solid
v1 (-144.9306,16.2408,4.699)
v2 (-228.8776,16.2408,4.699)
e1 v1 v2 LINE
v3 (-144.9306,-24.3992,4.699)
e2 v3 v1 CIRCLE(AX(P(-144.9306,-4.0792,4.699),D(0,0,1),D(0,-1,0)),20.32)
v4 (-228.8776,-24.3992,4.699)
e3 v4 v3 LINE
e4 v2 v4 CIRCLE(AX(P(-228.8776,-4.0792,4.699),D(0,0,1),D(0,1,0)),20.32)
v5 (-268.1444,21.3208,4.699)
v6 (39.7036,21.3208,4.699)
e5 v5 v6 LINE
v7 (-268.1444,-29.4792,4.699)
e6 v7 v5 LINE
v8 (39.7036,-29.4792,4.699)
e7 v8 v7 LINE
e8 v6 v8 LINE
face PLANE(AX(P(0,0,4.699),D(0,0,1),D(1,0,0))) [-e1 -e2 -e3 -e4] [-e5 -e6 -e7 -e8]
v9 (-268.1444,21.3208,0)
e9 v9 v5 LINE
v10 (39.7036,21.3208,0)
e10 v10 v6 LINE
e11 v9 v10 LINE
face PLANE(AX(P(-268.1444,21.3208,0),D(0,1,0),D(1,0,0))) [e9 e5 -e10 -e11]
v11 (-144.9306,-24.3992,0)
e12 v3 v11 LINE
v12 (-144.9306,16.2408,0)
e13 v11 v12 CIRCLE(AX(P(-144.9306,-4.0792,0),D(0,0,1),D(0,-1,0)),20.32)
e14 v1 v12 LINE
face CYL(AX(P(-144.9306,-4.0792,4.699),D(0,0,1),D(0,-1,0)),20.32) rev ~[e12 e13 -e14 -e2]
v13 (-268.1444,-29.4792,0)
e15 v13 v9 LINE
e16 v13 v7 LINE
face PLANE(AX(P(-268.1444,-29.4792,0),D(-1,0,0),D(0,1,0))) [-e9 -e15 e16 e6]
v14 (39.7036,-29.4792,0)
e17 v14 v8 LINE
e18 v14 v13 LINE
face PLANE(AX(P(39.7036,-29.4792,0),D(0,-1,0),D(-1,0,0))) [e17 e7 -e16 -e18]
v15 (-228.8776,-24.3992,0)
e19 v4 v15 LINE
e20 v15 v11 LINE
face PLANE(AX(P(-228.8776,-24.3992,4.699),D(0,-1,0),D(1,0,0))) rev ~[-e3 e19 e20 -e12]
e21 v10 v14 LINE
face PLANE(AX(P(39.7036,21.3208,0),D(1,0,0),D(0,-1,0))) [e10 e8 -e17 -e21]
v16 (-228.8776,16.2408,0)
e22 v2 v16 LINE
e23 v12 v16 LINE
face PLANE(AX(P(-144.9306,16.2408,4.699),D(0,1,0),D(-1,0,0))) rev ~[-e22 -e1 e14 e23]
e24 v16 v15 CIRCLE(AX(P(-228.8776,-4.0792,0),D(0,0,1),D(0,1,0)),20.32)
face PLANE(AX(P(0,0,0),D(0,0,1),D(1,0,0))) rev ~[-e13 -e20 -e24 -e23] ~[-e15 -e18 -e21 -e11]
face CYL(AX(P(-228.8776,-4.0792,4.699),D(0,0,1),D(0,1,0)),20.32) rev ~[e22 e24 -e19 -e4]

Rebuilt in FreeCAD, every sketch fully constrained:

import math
import FreeCAD as App
import Part
import Sketcher

V = App.Vector
Q = App.Units.Quantity


def add_polygon(sketch, points):
    """Adds a closed chain of lines whose ends are joined by coincident constraints."""
    first, n = sketch.GeometryCount, len(points)
    for a, b in zip(points, points[1:] + points[:1]):
        sketch.addGeometry(Part.LineSegment(App.Vector(*a, 0), App.Vector(*b, 0)), False)
    for i in range(n):
        sketch.addConstraint(Sketcher.Constraint("Coincident", first + i, 2, first + (i + 1) % n, 1))

doc = App.newDocument("Part")
body = doc.addObject("PartDesign::Body", "Body")

sketch1 = body.newObject("Sketcher::SketchObject", "Sketch")
sketch1.AttachmentSupport = (doc.getObject("XY_Plane"), [""])
sketch1.MapMode = "FlatFace"
add_polygon(sketch1, [(40, 21), (-268, 21), (-268, -29), (40, -29)])
sketch1.addConstraint(Sketcher.Constraint("Horizontal", 0))
sketch1.addConstraint(Sketcher.Constraint("Vertical", 1))
sketch1.addConstraint(Sketcher.Constraint("Horizontal", 2))
sketch1.addConstraint(Sketcher.Constraint("Vertical", 3))
sketch1.addConstraint(Sketcher.Constraint("DistanceY", 1, 2, 1, 1, Q("2 in")))
sketch1.addConstraint(Sketcher.Constraint("DistanceX", 0, 2, 0, 1, Q("12.12 in")))
sketch1.addConstraint(Sketcher.Constraint("DistanceY", -1, 1, 0, 2, Q("0.8394 in")))
sketch1.addConstraint(Sketcher.Constraint("DistanceX", 0, 2, -1, 1, 268.1444))
pad1 = body.newObject("PartDesign::Pad", "Pad")
pad1.Profile = sketch1
pad1.Length = Q("0.185 in")

sketch2 = body.newObject("Sketcher::SketchObject", "Sketch001")
sketch2.AttachmentSupport = (doc.getObject("XY_Plane"), [""])
sketch2.MapMode = "FlatFace"
sketch2.AttachmentOffset = App.Placement(V(0, 0, 0.185 * 25.4), App.Rotation())
sketch2.addGeometry(Part.ArcOfCircle(Part.Circle(V(-229, -4, 0), V(0, 0, 1), 20), math.radians(90), math.radians(270)), False)
sketch2.addGeometry(Part.LineSegment(V(-229, -24, 0), V(-145, -24, 0)), False)
sketch2.addGeometry(Part.ArcOfCircle(Part.Circle(V(-145, -4, 0), V(0, 0, 1), 20), math.radians(-90), math.radians(90)), False)
sketch2.addGeometry(Part.LineSegment(V(-145, 16, 0), V(-229, 16, 0)), False)
sketch2.addConstraint(Sketcher.Constraint("Tangent", 0, 2, 1, 1))
sketch2.addConstraint(Sketcher.Constraint("Tangent", 1, 2, 2, 1))
sketch2.addConstraint(Sketcher.Constraint("Tangent", 2, 2, 3, 1))
sketch2.addConstraint(Sketcher.Constraint("Tangent", 3, 2, 0, 1))
sketch2.addConstraint(Sketcher.Constraint("Horizontal", 1))
sketch2.addConstraint(Sketcher.Constraint("Horizontal", 3))
sketch2.addConstraint(Sketcher.Constraint("Radius", 0, Q("0.8 in")))
sketch2.addConstraint(Sketcher.Constraint("DistanceX", 1, 1, 1, 2, Q("3.305 in")))
sketch2.addConstraint(Sketcher.Constraint("DistanceY", 0, 3, -1, 1, Q("0.1606 in")))
sketch2.addConstraint(Sketcher.Constraint("DistanceX", 0, 3, -1, 1, 228.8776))
pocket1 = body.newObject("PartDesign::Pocket", "Pocket")
pocket1.Profile = sketch2
pocket1.Length = Q("1 in")

doc.recompute()
